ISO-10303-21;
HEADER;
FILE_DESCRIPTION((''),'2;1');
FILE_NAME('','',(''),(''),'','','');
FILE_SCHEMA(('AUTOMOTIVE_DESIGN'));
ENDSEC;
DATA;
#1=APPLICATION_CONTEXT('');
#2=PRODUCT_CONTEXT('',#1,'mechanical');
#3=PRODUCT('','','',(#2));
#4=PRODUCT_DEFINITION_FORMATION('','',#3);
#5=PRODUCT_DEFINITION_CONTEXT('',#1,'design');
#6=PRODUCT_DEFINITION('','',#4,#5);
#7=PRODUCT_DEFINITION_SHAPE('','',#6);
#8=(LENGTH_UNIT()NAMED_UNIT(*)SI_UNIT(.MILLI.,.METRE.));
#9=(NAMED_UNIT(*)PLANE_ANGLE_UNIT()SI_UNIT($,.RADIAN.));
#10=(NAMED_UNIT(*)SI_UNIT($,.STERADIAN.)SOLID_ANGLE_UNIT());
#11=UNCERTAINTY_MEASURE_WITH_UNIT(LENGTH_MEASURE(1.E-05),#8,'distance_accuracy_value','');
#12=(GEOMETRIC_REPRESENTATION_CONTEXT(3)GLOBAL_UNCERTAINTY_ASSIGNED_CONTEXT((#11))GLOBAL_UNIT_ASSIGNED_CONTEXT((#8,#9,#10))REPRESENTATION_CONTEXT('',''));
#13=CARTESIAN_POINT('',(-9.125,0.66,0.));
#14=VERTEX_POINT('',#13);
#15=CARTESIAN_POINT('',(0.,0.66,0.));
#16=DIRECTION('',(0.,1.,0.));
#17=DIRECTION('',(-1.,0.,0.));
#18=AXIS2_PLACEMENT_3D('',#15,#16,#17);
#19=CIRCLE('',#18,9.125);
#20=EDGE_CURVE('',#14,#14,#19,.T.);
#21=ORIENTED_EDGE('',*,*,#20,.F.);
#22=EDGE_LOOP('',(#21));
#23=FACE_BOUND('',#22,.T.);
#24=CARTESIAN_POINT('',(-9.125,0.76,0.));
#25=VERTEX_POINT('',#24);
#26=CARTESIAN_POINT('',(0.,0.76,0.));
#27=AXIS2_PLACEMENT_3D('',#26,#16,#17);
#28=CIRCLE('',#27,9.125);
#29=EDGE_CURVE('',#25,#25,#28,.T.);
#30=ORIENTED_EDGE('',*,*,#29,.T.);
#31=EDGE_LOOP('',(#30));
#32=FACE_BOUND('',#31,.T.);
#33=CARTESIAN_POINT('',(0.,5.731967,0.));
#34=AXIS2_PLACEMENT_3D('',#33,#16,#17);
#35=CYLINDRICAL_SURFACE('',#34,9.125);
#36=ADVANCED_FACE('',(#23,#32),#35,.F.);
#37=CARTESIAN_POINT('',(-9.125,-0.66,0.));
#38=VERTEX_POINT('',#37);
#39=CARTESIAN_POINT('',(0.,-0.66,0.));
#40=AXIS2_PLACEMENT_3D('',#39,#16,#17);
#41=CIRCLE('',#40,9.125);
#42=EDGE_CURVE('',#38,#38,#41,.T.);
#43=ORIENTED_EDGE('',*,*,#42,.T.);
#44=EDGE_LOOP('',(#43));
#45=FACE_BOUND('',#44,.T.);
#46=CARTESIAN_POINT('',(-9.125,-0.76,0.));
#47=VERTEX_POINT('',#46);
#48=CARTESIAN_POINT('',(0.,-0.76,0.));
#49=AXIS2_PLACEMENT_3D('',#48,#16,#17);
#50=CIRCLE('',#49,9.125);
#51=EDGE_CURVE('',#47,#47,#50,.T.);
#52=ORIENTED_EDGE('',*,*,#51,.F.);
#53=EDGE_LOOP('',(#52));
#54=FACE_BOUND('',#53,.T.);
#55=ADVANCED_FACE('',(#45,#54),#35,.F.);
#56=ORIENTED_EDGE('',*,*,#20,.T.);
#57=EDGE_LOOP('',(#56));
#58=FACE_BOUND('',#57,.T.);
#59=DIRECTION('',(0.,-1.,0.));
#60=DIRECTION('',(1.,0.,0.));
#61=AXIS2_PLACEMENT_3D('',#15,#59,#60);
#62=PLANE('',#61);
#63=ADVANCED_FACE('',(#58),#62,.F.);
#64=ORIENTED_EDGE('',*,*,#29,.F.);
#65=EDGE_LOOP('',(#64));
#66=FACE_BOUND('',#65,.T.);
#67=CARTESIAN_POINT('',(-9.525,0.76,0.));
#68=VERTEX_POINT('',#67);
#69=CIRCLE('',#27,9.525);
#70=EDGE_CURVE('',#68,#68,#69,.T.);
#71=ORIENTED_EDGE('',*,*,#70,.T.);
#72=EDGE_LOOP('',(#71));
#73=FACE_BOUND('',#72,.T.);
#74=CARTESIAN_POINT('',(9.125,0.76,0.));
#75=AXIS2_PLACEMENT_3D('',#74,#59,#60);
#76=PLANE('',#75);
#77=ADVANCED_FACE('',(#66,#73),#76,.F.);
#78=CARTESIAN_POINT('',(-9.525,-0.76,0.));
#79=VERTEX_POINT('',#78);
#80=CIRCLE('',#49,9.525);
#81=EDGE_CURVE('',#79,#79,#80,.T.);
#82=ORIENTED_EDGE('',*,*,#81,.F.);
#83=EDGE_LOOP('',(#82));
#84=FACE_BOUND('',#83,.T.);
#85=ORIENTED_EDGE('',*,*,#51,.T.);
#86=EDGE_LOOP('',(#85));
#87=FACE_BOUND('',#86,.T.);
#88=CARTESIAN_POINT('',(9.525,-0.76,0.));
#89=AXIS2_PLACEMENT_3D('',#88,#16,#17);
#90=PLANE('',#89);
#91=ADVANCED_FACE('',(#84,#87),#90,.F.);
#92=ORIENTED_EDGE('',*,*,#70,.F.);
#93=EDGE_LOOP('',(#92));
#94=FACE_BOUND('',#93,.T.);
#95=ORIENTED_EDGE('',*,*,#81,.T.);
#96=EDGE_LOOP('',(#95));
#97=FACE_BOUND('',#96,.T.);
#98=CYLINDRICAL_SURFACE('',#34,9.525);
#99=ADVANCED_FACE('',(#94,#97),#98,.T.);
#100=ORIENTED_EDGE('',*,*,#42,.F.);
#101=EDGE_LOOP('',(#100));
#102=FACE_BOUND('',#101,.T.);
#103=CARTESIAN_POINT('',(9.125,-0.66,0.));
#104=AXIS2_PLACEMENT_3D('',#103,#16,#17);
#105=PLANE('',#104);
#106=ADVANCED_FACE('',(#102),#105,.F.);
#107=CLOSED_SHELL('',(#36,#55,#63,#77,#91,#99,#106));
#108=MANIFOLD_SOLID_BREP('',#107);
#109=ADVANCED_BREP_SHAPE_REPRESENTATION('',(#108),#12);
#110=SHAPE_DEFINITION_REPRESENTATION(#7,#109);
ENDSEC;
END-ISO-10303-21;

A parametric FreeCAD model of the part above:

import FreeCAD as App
import Part
import Sketcher
from FreeCAD import Vector
Q = App.Units.Quantity

doc = App.newDocument("Part")
params = doc.addObject("Spreadsheet::Sheet", "Params")
for row, (alias, value) in enumerate([
    ("sketch1_width", "0.4 mm"),
    ("sketch1_height", "0.1 mm"),
    ("sketch1_height2", "1.32 mm"),
    ("revolution_angle", "360 deg"),
], start=1):
    params.set(f"A{row}", alias)
    params.set(f"B{row}", "=" + value)
    params.setAlias(f"B{row}", alias)

body = doc.addObject("PartDesign::Body", "Body")

sketch1 = doc.addObject("Sketcher::SketchObject", "Sketch")
body.addObject(sketch1)
sketch1.AttachmentSupport = (doc.XY_Plane, [""])
sketch1.MapMode = "FlatFace"
sketch1.addGeometry(Part.LineSegment(Vector(9.12, 0.66, 0), Vector(0, 0.66, 0)), False)
sketch1.addGeometry(Part.LineSegment(Vector(0, 0.66, 0), Vector(0, -0.66, 0)), False)
sketch1.addGeometry(Part.LineSegment(Vector(0, -0.66, 0), Vector(9.12, -0.66, 0)), False)
sketch1.addGeometry(Part.LineSegment(Vector(9.12, -0.66, 0), Vector(9.12, -0.76, 0)), False)
sketch1.addGeometry(Part.LineSegment(Vector(9.12, -0.76, 0), Vector(9.53, -0.76, 0)), False)
sketch1.addGeometry(Part.LineSegment(Vector(9.53, -0.76, 0), Vector(9.53, 0.76, 0)), False)
sketch1.addGeometry(Part.LineSegment(Vector(9.53, 0.76, 0), Vector(9.12, 0.76, 0)), False)
sketch1.addGeometry(Part.LineSegment(Vector(9.12, 0.76, 0), Vector(9.12, 0.66, 0)), False)
sketch1.addConstraint(Sketcher.Constraint("Coincident", 0, 2, 1, 1))
sketch1.addConstraint(Sketcher.Constraint("Coincident", 1, 2, 2, 1))
sketch1.addConstraint(Sketcher.Constraint("Coincident", 2, 2, 3, 1))
sketch1.addConstraint(Sketcher.Constraint("Coincident", 3, 2, 4, 1))
sketch1.addConstraint(Sketcher.Constraint("Coincident", 4, 2, 5, 1))
sketch1.addConstraint(Sketcher.Constraint("Coincident", 5, 2, 6, 1))
sketch1.addConstraint(Sketcher.Constraint("Coincident", 6, 2, 7, 1))
sketch1.addConstraint(Sketcher.Constraint("Coincident", 7, 2, 0, 1))
sketch1.addConstraint(Sketcher.Constraint("Horizontal", 0))
sketch1.addConstraint(Sketcher.Constraint("Vertical", 1))
sketch1.addConstraint(Sketcher.Constraint("Horizontal", 2))
sketch1.addConstraint(Sketcher.Constraint("Vertical", 3))
sketch1.addConstraint(Sketcher.Constraint("Horizontal", 4))
sketch1.addConstraint(Sketcher.Constraint("Vertical", 5))
sketch1.addConstraint(Sketcher.Constraint("Horizontal", 6))
sketch1.addConstraint(Sketcher.Constraint("Vertical", 7))
sketch1.addConstraint(Sketcher.Constraint("Symmetric", 0, 2, 1, 2, -1, 1))
sketch1.addConstraint(Sketcher.Constraint("Symmetric", 3, 2, 6, 2, -1))
sketch1.addConstraint(Sketcher.Constraint("DistanceX", 4, 1, 4, 2, Q("0.4 mm")))
sketch1.addConstraint(Sketcher.Constraint("DistanceY", 3, 2, 3, 1, Q("0.1 mm")))
sketch1.addConstraint(Sketcher.Constraint("DistanceY", 1, 2, 1, 1, Q("1.32 mm")))
sketch1.addConstraint(Sketcher.Constraint("DistanceX", 0, 2, 0, 1, Q("9.125 mm")))
sketch1.setExpression("Constraints[18]", "Params.sketch1_width")
sketch1.setExpression("Constraints[19]", "Params.sketch1_height")
sketch1.setExpression("Constraints[20]", "Params.sketch1_height2")
revolution = doc.addObject("PartDesign::Revolution", "Revolution")
body.addObject(revolution)
revolution.Profile = sketch1
revolution.ReferenceAxis = (sketch1, ["V_Axis"])
revolution.setExpression("Angle", "Params.revolution_angle")

doc.recompute()
